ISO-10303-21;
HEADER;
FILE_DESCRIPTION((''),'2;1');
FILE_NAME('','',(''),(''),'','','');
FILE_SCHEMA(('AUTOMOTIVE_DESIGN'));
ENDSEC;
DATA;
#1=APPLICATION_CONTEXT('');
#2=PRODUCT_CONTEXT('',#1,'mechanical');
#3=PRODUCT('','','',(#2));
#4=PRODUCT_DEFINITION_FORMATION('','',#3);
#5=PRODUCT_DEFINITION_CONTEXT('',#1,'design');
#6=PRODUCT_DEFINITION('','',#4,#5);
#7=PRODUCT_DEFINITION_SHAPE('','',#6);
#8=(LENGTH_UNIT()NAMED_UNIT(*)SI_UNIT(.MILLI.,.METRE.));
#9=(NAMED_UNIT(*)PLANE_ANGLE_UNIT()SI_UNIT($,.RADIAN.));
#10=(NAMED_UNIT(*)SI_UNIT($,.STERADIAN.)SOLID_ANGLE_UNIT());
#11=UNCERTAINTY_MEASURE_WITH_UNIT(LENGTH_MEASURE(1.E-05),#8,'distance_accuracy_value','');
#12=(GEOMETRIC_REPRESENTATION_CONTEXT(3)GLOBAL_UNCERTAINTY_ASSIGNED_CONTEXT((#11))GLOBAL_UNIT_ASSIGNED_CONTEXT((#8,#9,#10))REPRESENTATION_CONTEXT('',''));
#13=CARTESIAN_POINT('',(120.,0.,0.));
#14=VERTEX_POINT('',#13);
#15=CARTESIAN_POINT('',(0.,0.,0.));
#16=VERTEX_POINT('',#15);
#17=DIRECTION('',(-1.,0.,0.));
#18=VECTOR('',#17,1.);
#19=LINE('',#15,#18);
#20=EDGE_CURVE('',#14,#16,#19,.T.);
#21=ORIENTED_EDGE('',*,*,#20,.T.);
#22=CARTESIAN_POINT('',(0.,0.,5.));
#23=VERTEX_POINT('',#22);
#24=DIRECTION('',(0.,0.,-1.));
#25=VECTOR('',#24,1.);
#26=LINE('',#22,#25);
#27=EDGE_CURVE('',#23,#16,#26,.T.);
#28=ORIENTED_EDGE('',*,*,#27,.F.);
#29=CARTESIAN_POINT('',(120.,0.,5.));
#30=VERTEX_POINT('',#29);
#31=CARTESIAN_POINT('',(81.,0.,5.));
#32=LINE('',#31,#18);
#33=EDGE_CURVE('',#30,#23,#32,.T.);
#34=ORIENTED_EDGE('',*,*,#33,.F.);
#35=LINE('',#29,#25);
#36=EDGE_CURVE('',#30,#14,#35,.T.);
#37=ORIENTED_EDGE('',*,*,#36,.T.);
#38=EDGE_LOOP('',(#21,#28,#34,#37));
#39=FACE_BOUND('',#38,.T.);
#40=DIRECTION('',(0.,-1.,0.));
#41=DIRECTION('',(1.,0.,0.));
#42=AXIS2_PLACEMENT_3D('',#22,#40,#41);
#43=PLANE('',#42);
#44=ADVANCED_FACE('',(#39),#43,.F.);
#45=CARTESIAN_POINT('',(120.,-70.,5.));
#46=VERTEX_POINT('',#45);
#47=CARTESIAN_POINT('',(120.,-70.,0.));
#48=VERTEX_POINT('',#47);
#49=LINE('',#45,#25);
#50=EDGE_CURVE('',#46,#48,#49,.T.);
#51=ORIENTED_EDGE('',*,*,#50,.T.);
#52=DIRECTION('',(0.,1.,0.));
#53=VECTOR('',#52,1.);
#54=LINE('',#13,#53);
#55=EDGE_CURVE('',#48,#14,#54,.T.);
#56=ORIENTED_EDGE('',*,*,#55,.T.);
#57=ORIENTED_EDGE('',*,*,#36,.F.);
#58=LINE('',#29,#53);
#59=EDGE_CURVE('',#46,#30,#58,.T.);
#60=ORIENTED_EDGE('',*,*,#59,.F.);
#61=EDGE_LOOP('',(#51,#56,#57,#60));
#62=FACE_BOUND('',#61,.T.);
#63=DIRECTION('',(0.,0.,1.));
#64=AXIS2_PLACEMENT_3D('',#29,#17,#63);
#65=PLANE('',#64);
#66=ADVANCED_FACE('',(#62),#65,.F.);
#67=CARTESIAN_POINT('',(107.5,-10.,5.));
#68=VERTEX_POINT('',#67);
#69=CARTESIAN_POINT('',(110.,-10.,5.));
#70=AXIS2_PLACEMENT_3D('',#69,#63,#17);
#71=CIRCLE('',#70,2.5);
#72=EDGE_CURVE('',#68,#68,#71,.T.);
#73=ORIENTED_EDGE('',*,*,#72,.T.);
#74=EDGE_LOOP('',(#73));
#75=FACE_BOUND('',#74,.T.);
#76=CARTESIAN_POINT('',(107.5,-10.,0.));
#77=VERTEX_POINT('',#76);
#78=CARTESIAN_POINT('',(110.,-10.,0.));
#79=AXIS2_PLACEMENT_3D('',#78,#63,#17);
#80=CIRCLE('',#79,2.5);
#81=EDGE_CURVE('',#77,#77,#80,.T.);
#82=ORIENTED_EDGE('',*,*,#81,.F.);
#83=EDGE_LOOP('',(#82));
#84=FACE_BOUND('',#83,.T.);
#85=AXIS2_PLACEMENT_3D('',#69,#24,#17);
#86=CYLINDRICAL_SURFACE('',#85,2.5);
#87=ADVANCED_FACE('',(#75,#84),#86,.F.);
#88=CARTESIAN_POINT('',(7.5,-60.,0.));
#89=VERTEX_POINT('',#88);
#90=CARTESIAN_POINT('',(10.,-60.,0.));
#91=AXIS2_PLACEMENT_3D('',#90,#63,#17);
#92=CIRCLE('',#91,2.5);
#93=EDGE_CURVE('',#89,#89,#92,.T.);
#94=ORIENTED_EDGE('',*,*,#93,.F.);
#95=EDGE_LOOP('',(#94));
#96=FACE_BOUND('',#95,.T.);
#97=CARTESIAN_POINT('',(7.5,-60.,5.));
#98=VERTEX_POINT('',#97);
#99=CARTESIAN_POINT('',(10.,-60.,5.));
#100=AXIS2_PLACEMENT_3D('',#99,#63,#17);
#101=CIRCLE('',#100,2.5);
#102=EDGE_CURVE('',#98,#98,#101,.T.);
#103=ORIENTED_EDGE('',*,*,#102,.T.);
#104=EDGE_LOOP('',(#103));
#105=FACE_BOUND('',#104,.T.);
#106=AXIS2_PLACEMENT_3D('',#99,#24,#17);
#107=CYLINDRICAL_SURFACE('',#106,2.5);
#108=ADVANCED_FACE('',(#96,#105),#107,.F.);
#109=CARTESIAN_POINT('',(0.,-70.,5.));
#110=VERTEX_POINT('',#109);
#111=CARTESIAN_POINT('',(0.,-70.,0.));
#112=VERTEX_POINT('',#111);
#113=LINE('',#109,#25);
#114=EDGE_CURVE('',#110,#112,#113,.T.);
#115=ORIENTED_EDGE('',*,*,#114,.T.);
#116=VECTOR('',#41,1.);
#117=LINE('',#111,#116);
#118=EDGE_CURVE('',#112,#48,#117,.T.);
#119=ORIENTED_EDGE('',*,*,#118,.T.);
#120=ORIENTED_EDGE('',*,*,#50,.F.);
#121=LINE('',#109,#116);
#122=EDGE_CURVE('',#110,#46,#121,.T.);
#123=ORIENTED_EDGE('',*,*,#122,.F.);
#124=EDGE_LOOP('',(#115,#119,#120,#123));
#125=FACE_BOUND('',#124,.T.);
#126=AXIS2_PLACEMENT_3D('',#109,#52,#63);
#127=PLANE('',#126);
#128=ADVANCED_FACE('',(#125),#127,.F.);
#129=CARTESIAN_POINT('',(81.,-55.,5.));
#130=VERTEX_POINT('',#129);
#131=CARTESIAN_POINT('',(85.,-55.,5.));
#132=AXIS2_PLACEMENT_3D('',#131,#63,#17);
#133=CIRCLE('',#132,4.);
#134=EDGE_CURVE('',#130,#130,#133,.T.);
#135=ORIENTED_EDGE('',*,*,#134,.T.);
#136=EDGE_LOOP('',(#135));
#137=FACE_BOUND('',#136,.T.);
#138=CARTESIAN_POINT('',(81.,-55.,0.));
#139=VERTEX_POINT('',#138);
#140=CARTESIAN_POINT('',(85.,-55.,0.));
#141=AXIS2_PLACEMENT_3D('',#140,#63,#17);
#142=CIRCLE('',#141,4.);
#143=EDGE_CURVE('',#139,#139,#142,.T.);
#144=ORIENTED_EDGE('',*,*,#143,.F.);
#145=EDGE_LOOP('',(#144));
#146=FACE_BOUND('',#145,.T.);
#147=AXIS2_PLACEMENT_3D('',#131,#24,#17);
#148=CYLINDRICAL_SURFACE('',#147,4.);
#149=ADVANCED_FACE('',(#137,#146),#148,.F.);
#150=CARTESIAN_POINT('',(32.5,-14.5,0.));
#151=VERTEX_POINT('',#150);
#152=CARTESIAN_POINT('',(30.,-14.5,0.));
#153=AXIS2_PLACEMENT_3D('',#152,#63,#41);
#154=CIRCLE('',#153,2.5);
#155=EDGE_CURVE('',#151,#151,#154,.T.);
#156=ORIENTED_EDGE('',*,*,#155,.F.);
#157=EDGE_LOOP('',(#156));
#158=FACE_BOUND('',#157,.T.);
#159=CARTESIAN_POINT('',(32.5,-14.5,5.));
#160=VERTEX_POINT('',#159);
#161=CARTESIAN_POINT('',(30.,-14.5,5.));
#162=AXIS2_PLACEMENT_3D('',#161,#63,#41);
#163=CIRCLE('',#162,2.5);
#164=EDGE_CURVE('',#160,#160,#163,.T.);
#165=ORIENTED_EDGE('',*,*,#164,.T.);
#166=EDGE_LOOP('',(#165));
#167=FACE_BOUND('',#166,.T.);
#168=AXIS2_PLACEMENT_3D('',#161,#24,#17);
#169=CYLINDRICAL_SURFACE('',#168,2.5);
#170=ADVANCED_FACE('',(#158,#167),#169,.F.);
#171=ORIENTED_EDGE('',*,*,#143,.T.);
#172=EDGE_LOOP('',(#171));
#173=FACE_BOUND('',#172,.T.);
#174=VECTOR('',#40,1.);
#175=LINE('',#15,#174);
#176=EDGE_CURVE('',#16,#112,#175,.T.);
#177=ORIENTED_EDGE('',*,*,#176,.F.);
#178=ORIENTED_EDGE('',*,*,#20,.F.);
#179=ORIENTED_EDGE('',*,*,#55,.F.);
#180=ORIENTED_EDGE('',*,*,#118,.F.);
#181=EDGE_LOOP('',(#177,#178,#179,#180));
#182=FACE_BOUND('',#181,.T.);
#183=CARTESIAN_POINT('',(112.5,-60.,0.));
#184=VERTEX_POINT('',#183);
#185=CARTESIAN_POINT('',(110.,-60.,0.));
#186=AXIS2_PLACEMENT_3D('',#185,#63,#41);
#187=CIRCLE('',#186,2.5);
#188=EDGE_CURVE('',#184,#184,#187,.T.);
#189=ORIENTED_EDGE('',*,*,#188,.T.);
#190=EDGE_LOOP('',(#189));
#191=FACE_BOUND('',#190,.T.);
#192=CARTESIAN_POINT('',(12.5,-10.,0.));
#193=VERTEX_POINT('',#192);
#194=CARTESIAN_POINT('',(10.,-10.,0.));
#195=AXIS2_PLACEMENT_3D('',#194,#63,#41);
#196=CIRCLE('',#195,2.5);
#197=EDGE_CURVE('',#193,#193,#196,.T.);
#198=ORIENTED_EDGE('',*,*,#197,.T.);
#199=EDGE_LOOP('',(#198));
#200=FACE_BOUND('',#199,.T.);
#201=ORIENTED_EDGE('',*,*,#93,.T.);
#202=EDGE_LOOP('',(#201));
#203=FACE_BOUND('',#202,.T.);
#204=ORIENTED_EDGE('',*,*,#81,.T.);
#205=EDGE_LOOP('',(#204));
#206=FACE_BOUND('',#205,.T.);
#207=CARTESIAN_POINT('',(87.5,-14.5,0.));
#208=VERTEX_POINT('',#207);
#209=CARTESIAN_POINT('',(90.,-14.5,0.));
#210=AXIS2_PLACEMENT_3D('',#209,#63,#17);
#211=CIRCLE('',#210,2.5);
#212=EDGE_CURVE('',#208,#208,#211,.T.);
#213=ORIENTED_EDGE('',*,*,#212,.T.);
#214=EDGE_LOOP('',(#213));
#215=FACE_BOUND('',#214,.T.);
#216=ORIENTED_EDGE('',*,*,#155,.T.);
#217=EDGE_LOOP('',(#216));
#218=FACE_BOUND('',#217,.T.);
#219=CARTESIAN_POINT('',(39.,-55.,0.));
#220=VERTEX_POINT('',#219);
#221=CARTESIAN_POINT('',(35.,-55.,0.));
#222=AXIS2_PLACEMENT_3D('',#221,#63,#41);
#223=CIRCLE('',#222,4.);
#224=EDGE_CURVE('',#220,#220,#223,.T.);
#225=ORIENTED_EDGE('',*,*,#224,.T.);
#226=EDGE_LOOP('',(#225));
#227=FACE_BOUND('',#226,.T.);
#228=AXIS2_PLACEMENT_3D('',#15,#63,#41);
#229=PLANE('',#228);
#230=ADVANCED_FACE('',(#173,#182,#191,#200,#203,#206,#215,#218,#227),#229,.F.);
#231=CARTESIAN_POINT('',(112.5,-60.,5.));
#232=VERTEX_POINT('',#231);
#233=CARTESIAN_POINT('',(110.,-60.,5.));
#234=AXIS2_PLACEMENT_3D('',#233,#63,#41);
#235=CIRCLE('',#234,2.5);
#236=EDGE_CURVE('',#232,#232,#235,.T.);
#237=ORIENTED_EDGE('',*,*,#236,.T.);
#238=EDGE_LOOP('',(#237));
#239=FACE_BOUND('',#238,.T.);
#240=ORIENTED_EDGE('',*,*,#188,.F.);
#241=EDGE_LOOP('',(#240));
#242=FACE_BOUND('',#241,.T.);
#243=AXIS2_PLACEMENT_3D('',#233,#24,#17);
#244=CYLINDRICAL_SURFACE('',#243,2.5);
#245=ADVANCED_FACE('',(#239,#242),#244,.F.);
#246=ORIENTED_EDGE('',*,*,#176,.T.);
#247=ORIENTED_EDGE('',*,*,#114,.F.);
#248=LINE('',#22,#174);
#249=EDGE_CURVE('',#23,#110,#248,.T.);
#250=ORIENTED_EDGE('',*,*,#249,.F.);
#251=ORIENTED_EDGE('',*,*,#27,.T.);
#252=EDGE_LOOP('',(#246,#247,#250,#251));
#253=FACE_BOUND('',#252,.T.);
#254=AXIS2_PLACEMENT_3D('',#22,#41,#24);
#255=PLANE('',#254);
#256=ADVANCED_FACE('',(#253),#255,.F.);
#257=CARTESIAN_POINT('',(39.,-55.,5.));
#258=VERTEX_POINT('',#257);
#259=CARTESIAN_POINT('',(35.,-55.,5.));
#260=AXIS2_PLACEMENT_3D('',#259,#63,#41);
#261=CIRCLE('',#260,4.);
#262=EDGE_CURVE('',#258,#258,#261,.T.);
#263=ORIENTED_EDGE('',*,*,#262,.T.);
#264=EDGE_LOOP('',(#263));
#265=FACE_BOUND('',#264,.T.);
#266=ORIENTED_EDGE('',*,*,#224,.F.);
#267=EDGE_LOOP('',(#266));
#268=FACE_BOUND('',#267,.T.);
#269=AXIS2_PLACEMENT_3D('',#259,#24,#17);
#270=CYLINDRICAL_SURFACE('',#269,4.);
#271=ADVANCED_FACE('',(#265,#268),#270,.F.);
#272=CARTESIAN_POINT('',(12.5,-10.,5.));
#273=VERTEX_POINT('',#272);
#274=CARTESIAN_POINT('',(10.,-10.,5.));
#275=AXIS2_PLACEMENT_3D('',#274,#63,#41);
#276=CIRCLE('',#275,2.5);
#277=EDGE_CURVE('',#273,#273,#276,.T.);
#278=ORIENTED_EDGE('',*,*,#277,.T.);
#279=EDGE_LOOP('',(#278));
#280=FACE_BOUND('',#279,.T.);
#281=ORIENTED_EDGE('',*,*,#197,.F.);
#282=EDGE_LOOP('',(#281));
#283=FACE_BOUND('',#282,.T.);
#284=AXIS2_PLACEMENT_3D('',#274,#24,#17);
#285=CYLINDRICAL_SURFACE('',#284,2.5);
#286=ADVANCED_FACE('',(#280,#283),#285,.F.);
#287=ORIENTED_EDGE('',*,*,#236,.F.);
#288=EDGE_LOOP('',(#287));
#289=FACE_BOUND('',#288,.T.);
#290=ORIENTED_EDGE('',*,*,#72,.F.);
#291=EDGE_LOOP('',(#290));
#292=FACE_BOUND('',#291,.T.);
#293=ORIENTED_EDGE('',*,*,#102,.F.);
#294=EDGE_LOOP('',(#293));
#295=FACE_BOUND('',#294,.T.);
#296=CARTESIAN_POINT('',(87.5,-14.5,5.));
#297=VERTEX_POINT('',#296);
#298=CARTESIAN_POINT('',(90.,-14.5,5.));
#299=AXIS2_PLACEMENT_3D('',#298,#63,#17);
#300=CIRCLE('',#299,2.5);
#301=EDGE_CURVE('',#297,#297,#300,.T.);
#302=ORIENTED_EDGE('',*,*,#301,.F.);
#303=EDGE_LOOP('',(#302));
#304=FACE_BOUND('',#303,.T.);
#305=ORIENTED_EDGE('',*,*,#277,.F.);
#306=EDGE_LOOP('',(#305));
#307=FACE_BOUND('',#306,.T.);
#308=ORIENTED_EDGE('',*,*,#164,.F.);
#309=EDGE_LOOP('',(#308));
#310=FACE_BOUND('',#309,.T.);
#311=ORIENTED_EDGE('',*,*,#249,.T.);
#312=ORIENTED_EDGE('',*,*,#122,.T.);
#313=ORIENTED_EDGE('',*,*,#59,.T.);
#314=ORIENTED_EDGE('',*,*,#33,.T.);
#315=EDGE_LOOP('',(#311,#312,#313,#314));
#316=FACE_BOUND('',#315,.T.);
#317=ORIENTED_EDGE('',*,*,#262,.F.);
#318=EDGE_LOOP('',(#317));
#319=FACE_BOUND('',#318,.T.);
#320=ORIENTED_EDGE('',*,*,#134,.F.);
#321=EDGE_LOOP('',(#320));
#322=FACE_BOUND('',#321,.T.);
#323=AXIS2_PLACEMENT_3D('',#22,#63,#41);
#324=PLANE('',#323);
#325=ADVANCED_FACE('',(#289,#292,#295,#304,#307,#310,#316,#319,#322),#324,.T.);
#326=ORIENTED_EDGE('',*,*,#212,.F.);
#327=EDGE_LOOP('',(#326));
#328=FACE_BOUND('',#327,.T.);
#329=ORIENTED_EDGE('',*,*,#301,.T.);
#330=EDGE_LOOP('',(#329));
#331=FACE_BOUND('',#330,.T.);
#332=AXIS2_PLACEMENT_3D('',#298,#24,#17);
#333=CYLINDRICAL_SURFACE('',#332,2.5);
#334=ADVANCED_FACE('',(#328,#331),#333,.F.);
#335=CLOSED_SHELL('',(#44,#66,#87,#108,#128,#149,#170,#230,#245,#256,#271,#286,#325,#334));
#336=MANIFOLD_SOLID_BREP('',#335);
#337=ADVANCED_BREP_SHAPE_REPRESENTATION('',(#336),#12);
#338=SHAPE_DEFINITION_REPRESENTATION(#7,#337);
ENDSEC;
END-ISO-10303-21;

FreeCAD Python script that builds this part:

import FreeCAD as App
import Part
import Sketcher

V = App.Vector
Q = App.Units.Quantity


def add_polygon(sketch, points):
    """Adds a closed chain of lines whose ends are joined by coincident constraints."""
    first, n = sketch.GeometryCount, len(points)
    for a, b in zip(points, points[1:] + points[:1]):
        sketch.addGeometry(Part.LineSegment(App.Vector(*a, 0), App.Vector(*b, 0)), False)
    for i in range(n):
        sketch.addConstraint(Sketcher.Constraint("Coincident", first + i, 2, first + (i + 1) % n, 1))

doc = App.newDocument("Part")
params = doc.addObject("Spreadsheet::Sheet", "Params")
for row, (alias, value) in enumerate([
    ("sketch1_diameter", "5 mm"),
    ("sketch1_diameter2", "8 mm"),
    ("sketch1_width", "120 mm"),
    ("sketch1_height", "70 mm"),
    ("pad1_length", "5 mm"),
], start=1):
    params.set(f"A{row}", alias)
    params.set(f"B{row}", "=" + value)
    params.setAlias(f"B{row}", alias)

body = doc.addObject("PartDesign::Body", "Body")

# Sketch on XY plane
sketch1 = body.newObject("Sketcher::SketchObject", "Sketch")
sketch1.AttachmentSupport = (doc.getObject("XY_Plane"), [""])
sketch1.MapMode = "FlatFace"
add_polygon(sketch1, [(120, 0), (0, 0), (0, -70), (120, -70)])  # lines 0-3
sketch1.addGeometry(Part.Circle(V(110, -60, 0), V(0, 0, 1), 2.5), False)  # 4
sketch1.addGeometry(Part.Circle(V(85, -55, 0), V(0, 0, 1), 4), False)  # 5
sketch1.addGeometry(Part.Circle(V(35, -55, 0), V(0, 0, 1), 4), False)  # 6
sketch1.addGeometry(Part.Circle(V(10, -60, 0), V(0, 0, 1), 2.5), False)  # 7
sketch1.addGeometry(Part.Circle(V(90, -14.5, 0), V(0, 0, 1), 2.5), False)  # 8
sketch1.addGeometry(Part.Circle(V(110, -10, 0), V(0, 0, 1), 2.5), False)  # 9
sketch1.addGeometry(Part.Circle(V(30, -14.5, 0), V(0, 0, 1), 2.5), False)  # 10
sketch1.addGeometry(Part.Circle(V(10, -10, 0), V(0, 0, 1), 2.5), False)  # 11
sketch1.addConstraint(Sketcher.Constraint("Horizontal", 0))
sketch1.addConstraint(Sketcher.Constraint("Vertical", 1))
sketch1.addConstraint(Sketcher.Constraint("Horizontal", 2))
sketch1.addConstraint(Sketcher.Constraint("Vertical", 3))
sketch1.addConstraint(Sketcher.Constraint("Coincident", 0, 2, -1, 1))
sketch1.addConstraint(Sketcher.Constraint("Equal", 5, 6))
sketch1.addConstraint(Sketcher.Constraint("Equal", 4, 7))
sketch1.addConstraint(Sketcher.Constraint("Equal", 7, 8))
sketch1.addConstraint(Sketcher.Constraint("Equal", 8, 9))
sketch1.addConstraint(Sketcher.Constraint("Equal", 9, 10))
sketch1.addConstraint(Sketcher.Constraint("Equal", 10, 11))
sketch1.addConstraint(Sketcher.Constraint("Horizontal", 5, 3, 6, 3))
sketch1.addConstraint(Sketcher.Constraint("Horizontal", 4, 3, 7, 3))
sketch1.addConstraint(Sketcher.Constraint("Horizontal", 8, 3, 10, 3))
sketch1.addConstraint(Sketcher.Constraint("Horizontal", 9, 3, 11, 3))
sketch1.addConstraint(Sketcher.Constraint("Vertical", 4, 3, 9, 3))
sketch1.addConstraint(Sketcher.Constraint("Vertical", 7, 3, 11, 3))
sketch1.addConstraint(Sketcher.Constraint("Diameter", 4, Q("5 mm")))
sketch1.addConstraint(Sketcher.Constraint("Diameter", 5, Q("8 mm")))
sketch1.addConstraint(Sketcher.Constraint("DistanceX", 0, 2, 0, 1, Q("120 mm")))
sketch1.addConstraint(Sketcher.Constraint("DistanceY", 1, 2, 1, 1, Q("70 mm")))
sketch1.addConstraint(Sketcher.Constraint("DistanceX", -1, 1, 4, 3, Q("110 mm")))
sketch1.addConstraint(Sketcher.Constraint("DistanceY", 4, 3, -1, 1, Q("60 mm")))
sketch1.addConstraint(Sketcher.Constraint("DistanceX", -1, 1, 5, 3, Q("85 mm")))
sketch1.addConstraint(Sketcher.Constraint("DistanceY", 5, 3, -1, 1, Q("55 mm")))
sketch1.addConstraint(Sketcher.Constraint("DistanceX", -1, 1, 6, 3, Q("35 mm")))
sketch1.addConstraint(Sketcher.Constraint("DistanceX", -1, 1, 7, 3, Q("10 mm")))
sketch1.addConstraint(Sketcher.Constraint("DistanceX", -1, 1, 8, 3, Q("90 mm")))
sketch1.addConstraint(Sketcher.Constraint("DistanceY", 9, 3, -1, 1, Q("10 mm")))
sketch1.addConstraint(Sketcher.Constraint("DistanceX", -1, 1, 10, 3, Q("30 mm")))
sketch1.addConstraint(Sketcher.Constraint("DistanceY", 8, 3, -1, 1, Q("14.5 mm")))
sketch1.setExpression("Constraints[21]", "Params.sketch1_diameter")
sketch1.setExpression("Constraints[22]", "Params.sketch1_diameter2")
sketch1.setExpression("Constraints[23]", "Params.sketch1_width")
sketch1.setExpression("Constraints[24]", "Params.sketch1_height")
pad1 = body.newObject("PartDesign::Pad", "Pad")
pad1.Profile = sketch1
pad1.setExpression("Length", "Params.pad1_length")

doc.recompute()
